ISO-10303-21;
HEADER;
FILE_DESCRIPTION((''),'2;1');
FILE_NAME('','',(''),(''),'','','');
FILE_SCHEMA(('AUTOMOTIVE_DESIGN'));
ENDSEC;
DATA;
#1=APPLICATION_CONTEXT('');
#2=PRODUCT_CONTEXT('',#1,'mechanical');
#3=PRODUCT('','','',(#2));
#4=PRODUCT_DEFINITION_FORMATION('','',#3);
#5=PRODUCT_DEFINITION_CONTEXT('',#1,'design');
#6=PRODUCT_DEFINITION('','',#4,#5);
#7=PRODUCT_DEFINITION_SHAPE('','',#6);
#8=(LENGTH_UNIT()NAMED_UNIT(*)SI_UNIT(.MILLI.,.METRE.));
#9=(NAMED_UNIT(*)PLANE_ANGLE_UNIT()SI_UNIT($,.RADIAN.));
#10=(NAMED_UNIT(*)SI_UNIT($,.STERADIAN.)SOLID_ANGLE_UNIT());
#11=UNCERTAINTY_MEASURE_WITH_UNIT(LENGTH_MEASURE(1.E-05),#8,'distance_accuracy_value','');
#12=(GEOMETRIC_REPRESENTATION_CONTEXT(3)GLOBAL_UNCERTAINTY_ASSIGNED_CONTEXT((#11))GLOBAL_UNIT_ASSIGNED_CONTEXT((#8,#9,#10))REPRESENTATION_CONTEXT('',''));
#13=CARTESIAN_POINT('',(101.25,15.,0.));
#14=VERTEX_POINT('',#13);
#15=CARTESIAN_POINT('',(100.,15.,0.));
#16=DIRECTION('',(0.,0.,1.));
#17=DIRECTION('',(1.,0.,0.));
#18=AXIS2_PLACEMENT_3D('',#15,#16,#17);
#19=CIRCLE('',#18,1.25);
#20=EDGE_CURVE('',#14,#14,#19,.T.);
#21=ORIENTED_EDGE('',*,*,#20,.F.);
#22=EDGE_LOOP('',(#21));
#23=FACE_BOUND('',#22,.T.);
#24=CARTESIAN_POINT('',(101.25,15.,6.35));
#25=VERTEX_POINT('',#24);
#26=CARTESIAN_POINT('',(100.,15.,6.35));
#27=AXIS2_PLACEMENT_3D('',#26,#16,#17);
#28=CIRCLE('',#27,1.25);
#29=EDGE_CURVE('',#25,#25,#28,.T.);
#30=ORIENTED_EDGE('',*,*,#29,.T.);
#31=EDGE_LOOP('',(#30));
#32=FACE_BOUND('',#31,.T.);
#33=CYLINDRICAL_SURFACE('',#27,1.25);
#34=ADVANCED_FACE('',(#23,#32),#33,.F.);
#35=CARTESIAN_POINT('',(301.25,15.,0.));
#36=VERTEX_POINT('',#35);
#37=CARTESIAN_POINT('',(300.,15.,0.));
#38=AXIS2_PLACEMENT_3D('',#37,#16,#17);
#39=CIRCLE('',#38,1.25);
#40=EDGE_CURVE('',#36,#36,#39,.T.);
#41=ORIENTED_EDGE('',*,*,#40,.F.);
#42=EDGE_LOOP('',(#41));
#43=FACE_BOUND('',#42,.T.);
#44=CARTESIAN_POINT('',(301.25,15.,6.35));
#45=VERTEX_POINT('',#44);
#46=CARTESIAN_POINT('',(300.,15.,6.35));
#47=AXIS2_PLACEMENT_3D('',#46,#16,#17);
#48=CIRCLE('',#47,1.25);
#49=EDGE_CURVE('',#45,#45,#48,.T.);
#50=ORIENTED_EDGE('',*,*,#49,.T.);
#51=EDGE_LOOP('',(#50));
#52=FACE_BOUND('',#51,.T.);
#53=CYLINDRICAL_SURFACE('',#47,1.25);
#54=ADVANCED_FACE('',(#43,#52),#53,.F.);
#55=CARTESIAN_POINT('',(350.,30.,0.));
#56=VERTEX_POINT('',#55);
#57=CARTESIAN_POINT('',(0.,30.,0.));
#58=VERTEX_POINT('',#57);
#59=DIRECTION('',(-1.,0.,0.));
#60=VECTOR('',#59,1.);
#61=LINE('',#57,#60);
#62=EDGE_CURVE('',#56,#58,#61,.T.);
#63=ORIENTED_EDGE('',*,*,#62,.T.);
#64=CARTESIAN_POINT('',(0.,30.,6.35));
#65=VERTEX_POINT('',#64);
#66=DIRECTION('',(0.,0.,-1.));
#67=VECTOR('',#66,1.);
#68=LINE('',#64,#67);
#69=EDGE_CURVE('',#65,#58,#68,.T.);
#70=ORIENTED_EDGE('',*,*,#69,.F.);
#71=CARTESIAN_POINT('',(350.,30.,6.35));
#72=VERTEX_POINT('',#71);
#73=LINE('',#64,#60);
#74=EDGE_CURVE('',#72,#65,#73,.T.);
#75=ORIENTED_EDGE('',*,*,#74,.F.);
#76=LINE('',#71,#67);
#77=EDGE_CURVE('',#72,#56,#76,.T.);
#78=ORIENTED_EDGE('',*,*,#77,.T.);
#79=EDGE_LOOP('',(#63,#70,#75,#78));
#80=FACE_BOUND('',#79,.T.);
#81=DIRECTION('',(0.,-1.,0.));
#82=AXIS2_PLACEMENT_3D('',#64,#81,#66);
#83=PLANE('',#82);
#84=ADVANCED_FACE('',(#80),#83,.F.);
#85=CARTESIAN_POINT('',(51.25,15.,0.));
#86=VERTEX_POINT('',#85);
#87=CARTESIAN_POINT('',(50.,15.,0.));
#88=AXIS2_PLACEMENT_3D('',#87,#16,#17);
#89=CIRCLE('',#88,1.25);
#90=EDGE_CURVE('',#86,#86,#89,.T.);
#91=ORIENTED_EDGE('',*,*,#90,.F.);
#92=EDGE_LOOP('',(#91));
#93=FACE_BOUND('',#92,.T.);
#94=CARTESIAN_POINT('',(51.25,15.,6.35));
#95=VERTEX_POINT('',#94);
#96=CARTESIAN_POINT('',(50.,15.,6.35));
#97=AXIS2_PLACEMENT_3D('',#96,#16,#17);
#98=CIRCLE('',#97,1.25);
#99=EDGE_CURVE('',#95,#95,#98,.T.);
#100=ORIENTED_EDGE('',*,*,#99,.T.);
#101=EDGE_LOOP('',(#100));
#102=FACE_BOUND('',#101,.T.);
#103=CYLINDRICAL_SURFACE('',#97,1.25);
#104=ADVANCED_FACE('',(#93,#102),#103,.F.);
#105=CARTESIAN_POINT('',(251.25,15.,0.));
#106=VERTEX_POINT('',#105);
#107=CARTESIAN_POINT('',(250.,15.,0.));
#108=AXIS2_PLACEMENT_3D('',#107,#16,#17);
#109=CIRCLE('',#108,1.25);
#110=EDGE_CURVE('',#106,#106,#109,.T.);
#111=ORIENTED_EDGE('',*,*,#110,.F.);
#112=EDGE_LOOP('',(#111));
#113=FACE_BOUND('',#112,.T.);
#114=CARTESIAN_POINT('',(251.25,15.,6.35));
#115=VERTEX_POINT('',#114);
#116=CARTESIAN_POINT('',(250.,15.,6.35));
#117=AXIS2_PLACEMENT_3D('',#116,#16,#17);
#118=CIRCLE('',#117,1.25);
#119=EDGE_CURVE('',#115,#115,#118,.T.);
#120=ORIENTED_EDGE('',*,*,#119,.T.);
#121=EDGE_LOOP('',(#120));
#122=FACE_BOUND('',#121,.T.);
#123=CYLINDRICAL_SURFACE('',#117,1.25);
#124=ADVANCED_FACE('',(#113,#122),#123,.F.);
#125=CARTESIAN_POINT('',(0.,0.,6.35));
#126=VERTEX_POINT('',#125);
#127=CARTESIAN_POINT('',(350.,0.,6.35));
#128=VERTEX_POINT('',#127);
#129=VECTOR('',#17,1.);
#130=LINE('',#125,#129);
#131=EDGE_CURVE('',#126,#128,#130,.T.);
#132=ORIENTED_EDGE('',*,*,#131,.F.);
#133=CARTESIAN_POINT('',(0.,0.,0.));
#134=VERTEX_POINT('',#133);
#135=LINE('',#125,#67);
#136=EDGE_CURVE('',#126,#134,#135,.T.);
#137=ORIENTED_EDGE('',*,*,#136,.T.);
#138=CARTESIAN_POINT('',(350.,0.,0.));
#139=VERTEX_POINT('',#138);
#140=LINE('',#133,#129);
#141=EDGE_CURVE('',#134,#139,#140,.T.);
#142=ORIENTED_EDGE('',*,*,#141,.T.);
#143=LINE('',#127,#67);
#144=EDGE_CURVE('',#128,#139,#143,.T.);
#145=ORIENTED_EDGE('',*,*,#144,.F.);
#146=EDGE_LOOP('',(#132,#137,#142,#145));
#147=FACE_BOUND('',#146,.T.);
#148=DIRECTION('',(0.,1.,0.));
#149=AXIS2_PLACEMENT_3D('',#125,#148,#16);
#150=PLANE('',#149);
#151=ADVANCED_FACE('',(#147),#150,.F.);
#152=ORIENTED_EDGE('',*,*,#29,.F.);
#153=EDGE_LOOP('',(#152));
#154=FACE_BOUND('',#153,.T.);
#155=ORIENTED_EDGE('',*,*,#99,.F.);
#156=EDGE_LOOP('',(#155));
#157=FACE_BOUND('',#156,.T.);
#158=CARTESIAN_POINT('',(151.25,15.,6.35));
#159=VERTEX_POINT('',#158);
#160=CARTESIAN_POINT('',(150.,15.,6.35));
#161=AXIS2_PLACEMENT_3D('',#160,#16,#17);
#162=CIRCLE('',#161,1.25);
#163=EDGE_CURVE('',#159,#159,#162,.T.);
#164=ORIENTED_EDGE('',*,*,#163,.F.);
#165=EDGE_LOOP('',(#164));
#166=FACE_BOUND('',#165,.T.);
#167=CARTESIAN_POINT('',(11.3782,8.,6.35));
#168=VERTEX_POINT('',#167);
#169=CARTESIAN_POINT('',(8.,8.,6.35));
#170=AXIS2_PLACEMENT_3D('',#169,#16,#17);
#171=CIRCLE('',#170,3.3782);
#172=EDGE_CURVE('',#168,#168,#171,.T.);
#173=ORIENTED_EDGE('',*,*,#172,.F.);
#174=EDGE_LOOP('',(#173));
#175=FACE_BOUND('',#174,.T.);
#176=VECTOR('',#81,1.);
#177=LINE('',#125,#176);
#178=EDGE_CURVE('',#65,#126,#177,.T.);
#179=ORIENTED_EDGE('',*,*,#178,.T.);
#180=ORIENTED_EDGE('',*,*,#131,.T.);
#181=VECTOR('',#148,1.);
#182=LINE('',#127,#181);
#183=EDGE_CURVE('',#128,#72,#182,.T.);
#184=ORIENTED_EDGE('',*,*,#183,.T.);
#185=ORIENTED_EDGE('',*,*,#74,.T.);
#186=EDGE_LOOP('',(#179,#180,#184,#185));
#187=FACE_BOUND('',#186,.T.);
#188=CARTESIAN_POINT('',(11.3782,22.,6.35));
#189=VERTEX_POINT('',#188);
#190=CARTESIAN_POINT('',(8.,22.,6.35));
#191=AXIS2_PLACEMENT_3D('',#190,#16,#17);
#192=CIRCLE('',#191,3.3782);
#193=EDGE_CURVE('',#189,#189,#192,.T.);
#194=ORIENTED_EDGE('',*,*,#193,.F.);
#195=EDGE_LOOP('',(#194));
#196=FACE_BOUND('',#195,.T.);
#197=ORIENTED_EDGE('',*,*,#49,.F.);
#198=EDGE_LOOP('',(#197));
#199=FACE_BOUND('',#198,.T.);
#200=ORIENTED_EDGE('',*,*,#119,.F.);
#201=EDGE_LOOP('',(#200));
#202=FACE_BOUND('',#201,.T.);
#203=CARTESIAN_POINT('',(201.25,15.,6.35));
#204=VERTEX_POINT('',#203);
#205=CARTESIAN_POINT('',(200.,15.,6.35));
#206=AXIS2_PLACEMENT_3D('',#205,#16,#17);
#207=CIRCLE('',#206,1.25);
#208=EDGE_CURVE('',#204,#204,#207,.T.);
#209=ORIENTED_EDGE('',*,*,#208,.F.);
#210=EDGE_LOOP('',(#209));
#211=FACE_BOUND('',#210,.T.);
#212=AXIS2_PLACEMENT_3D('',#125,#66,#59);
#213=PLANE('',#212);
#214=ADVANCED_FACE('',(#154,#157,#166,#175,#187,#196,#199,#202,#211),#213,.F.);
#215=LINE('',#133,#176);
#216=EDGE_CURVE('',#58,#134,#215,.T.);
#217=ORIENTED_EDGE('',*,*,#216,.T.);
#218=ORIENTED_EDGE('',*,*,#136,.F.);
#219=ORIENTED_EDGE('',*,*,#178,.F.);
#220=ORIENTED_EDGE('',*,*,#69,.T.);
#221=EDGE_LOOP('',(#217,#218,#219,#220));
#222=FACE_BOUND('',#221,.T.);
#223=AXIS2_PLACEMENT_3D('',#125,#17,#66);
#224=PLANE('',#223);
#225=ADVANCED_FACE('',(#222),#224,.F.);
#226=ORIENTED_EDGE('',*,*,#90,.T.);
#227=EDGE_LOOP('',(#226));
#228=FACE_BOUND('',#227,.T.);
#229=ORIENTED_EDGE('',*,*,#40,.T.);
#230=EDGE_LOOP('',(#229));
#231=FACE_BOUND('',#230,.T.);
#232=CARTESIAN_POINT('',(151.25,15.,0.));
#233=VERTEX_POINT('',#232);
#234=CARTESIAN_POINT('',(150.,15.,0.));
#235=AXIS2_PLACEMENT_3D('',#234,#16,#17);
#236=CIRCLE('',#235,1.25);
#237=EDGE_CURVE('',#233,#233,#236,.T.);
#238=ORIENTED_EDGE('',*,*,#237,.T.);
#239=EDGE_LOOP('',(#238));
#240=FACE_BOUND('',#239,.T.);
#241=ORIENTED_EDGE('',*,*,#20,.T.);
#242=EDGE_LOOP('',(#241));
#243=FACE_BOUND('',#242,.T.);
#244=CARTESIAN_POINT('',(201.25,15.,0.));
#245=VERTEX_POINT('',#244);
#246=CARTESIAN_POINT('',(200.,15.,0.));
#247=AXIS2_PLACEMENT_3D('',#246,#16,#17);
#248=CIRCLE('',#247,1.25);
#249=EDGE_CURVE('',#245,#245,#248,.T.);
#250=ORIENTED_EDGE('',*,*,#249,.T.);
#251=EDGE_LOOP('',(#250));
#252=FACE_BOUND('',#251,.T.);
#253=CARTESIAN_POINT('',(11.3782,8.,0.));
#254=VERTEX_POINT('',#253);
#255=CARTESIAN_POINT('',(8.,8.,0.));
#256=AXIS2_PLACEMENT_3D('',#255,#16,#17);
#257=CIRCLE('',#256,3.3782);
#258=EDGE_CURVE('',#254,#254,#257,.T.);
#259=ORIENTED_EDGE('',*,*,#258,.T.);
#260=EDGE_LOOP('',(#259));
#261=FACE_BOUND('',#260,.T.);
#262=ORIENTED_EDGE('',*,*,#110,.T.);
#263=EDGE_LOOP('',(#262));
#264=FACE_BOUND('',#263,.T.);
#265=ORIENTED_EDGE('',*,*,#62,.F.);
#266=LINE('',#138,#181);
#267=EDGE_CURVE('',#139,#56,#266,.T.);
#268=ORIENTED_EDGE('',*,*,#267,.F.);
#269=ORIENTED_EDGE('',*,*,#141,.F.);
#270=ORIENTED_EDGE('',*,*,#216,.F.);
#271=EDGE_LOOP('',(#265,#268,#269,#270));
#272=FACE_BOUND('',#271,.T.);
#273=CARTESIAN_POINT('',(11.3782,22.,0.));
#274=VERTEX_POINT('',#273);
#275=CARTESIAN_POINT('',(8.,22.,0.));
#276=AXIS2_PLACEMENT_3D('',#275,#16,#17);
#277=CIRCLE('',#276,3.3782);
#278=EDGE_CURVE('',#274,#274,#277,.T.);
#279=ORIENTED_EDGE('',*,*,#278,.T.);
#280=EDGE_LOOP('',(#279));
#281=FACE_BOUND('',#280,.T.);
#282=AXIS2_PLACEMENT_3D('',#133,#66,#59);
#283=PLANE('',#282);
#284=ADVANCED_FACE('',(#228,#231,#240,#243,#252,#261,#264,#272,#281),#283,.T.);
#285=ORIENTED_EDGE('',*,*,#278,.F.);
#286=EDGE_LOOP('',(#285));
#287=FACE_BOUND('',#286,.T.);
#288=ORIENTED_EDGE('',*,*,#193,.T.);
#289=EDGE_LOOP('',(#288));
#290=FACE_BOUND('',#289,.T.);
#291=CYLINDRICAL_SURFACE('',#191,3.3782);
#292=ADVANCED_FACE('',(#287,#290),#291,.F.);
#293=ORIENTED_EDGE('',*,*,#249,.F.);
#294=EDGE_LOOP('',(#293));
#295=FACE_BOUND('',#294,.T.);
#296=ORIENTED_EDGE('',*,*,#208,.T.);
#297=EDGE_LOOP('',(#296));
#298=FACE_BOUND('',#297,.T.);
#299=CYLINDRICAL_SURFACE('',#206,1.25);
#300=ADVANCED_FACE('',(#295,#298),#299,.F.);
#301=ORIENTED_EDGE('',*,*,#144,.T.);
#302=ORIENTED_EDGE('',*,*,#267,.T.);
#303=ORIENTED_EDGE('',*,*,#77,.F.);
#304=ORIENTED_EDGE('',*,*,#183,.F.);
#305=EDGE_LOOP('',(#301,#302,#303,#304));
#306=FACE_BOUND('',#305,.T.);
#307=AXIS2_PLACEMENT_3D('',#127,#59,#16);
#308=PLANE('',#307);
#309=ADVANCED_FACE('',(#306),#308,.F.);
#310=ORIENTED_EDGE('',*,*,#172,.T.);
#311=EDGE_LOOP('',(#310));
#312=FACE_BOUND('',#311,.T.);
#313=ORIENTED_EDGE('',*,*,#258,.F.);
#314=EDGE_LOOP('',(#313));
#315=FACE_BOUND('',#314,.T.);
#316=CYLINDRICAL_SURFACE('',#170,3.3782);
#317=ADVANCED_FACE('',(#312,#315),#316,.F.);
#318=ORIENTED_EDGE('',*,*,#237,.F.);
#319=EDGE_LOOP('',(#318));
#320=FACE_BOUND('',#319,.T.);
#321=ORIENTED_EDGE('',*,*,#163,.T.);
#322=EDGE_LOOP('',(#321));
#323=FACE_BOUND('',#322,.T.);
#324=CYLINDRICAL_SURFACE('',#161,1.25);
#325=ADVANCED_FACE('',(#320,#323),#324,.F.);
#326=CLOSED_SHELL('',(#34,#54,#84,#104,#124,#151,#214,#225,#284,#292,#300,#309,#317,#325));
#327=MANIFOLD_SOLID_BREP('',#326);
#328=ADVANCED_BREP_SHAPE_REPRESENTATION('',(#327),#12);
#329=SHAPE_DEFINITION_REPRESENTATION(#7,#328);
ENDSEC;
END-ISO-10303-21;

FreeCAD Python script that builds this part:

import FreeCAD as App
import Part
import Sketcher
from FreeCAD import Vector
Q = App.Units.Quantity


def add_polygon(sketch, points):
    """Adds a closed chain of lines whose ends are joined by coincident constraints."""
    first, n = sketch.GeometryCount, len(points)
    for a, b in zip(points, points[1:] + points[:1]):
        sketch.addGeometry(Part.LineSegment(App.Vector(*a, 0), App.Vector(*b, 0)), False)
    for i in range(n):
        sketch.addConstraint(Sketcher.Constraint("Coincident", first + i, 2, first + (i + 1) % n, 1))

doc = App.newDocument("Part")
body = doc.addObject("PartDesign::Body", "Body")

# Sketch on XY plane
sketch1 = body.newObject("Sketcher::SketchObject", "Sketch")
sketch1.AttachmentSupport = (doc.getObject("XY_Plane"), [""])
sketch1.MapMode = "FlatFace"
add_polygon(sketch1, [(0, 30), (0, 0), (350, 0), (350, 30)])  # lines 0-3
sketch1.addConstraint([
    Sketcher.Constraint("Vertical", 0),
    Sketcher.Constraint("Horizontal", 1),
    Sketcher.Constraint("Vertical", 2),
    Sketcher.Constraint("Horizontal", 3),
    Sketcher.Constraint("Coincident", 0, 2, -1, 1),
    Sketcher.Constraint("DistanceX", 1, 1, 1, 2, Q("350 mm")),
    Sketcher.Constraint("DistanceY", 0, 2, 0, 1, Q("30 mm")),
])
pad1 = body.newObject("PartDesign::Pad", "Pad")
pad1.Profile = sketch1
pad1.Length = 6.35

# Sketch on XY plane
sketch2 = body.newObject("Sketcher::SketchObject", "Sketch001")
sketch2.AttachmentSupport = (doc.getObject("XY_Plane"), [""])
sketch2.MapMode = "FlatFace"
sketch2.AttachmentOffset = App.Placement(Vector(0, 0, 6.35), App.Rotation())
sketch2.addGeometry([
    Part.Circle(Vector(8, 22, 0), Vector(0, 0, 1), 3.4),
    Part.Circle(Vector(8, 8, 0), Vector(0, 0, 1), 3.4),
], False)
sketch2.addConstraint([
    Sketcher.Constraint("Equal", 0, 1),
    Sketcher.Constraint("Vertical", 0, 3, 1, 3),
    Sketcher.Constraint("DistanceX", -1, 1, 0, 3, Q("8 mm")),
    Sketcher.Constraint("DistanceY", -1, 1, 0, 3, Q("22 mm")),
    Sketcher.Constraint("DistanceY", -1, 1, 1, 3, Q("8 mm")),
    Sketcher.Constraint("Diameter", 0, Q("6.7564 mm")),
])
doc.recompute()
hole = body.newObject("PartDesign::Hole", "Hole")
hole.Profile = sketch2
hole.ThreadType = "None"
hole.Diameter = 6.7564
hole.DepthType = "ThroughAll"

# Sketch on XY plane
sketch3 = body.newObject("Sketcher::SketchObject", "Sketch002")
sketch3.AttachmentSupport = (doc.getObject("XY_Plane"), [""])
sketch3.MapMode = "FlatFace"
sketch3.AttachmentOffset = App.Placement(Vector(0, 0, 6.35), App.Rotation())
sketch3.addGeometry(Part.Circle(Vector(50, 15, 0), Vector(0, 0, 1), 1.2), False)
sketch3.addConstraint([
    Sketcher.Constraint("Diameter", 0, Q("2.5 mm")),
    Sketcher.Constraint("DistanceX", -1, 1, 0, 3, Q("50 mm")),
    Sketcher.Constraint("DistanceY", -1, 1, 0, 3, Q("15 mm")),
])
doc.recompute()
hole2 = body.newObject("PartDesign::Hole", "Hole001")
hole2.Profile = sketch3
hole2.ThreadType = "None"
hole2.Diameter = 2.5
hole2.DepthType = "ThroughAll"
doc.recompute()

linearpattern = body.newObject("PartDesign::LinearPattern", "LinearPattern")
linearpattern.Originals = [hole2]
linearpattern.Direction = (doc.getObject("X_Axis"), [""])
linearpattern.Mode = "offset"
linearpattern.Offset = 50
linearpattern.Occurrences = 6
body.Tip = linearpattern

doc.recompute()
